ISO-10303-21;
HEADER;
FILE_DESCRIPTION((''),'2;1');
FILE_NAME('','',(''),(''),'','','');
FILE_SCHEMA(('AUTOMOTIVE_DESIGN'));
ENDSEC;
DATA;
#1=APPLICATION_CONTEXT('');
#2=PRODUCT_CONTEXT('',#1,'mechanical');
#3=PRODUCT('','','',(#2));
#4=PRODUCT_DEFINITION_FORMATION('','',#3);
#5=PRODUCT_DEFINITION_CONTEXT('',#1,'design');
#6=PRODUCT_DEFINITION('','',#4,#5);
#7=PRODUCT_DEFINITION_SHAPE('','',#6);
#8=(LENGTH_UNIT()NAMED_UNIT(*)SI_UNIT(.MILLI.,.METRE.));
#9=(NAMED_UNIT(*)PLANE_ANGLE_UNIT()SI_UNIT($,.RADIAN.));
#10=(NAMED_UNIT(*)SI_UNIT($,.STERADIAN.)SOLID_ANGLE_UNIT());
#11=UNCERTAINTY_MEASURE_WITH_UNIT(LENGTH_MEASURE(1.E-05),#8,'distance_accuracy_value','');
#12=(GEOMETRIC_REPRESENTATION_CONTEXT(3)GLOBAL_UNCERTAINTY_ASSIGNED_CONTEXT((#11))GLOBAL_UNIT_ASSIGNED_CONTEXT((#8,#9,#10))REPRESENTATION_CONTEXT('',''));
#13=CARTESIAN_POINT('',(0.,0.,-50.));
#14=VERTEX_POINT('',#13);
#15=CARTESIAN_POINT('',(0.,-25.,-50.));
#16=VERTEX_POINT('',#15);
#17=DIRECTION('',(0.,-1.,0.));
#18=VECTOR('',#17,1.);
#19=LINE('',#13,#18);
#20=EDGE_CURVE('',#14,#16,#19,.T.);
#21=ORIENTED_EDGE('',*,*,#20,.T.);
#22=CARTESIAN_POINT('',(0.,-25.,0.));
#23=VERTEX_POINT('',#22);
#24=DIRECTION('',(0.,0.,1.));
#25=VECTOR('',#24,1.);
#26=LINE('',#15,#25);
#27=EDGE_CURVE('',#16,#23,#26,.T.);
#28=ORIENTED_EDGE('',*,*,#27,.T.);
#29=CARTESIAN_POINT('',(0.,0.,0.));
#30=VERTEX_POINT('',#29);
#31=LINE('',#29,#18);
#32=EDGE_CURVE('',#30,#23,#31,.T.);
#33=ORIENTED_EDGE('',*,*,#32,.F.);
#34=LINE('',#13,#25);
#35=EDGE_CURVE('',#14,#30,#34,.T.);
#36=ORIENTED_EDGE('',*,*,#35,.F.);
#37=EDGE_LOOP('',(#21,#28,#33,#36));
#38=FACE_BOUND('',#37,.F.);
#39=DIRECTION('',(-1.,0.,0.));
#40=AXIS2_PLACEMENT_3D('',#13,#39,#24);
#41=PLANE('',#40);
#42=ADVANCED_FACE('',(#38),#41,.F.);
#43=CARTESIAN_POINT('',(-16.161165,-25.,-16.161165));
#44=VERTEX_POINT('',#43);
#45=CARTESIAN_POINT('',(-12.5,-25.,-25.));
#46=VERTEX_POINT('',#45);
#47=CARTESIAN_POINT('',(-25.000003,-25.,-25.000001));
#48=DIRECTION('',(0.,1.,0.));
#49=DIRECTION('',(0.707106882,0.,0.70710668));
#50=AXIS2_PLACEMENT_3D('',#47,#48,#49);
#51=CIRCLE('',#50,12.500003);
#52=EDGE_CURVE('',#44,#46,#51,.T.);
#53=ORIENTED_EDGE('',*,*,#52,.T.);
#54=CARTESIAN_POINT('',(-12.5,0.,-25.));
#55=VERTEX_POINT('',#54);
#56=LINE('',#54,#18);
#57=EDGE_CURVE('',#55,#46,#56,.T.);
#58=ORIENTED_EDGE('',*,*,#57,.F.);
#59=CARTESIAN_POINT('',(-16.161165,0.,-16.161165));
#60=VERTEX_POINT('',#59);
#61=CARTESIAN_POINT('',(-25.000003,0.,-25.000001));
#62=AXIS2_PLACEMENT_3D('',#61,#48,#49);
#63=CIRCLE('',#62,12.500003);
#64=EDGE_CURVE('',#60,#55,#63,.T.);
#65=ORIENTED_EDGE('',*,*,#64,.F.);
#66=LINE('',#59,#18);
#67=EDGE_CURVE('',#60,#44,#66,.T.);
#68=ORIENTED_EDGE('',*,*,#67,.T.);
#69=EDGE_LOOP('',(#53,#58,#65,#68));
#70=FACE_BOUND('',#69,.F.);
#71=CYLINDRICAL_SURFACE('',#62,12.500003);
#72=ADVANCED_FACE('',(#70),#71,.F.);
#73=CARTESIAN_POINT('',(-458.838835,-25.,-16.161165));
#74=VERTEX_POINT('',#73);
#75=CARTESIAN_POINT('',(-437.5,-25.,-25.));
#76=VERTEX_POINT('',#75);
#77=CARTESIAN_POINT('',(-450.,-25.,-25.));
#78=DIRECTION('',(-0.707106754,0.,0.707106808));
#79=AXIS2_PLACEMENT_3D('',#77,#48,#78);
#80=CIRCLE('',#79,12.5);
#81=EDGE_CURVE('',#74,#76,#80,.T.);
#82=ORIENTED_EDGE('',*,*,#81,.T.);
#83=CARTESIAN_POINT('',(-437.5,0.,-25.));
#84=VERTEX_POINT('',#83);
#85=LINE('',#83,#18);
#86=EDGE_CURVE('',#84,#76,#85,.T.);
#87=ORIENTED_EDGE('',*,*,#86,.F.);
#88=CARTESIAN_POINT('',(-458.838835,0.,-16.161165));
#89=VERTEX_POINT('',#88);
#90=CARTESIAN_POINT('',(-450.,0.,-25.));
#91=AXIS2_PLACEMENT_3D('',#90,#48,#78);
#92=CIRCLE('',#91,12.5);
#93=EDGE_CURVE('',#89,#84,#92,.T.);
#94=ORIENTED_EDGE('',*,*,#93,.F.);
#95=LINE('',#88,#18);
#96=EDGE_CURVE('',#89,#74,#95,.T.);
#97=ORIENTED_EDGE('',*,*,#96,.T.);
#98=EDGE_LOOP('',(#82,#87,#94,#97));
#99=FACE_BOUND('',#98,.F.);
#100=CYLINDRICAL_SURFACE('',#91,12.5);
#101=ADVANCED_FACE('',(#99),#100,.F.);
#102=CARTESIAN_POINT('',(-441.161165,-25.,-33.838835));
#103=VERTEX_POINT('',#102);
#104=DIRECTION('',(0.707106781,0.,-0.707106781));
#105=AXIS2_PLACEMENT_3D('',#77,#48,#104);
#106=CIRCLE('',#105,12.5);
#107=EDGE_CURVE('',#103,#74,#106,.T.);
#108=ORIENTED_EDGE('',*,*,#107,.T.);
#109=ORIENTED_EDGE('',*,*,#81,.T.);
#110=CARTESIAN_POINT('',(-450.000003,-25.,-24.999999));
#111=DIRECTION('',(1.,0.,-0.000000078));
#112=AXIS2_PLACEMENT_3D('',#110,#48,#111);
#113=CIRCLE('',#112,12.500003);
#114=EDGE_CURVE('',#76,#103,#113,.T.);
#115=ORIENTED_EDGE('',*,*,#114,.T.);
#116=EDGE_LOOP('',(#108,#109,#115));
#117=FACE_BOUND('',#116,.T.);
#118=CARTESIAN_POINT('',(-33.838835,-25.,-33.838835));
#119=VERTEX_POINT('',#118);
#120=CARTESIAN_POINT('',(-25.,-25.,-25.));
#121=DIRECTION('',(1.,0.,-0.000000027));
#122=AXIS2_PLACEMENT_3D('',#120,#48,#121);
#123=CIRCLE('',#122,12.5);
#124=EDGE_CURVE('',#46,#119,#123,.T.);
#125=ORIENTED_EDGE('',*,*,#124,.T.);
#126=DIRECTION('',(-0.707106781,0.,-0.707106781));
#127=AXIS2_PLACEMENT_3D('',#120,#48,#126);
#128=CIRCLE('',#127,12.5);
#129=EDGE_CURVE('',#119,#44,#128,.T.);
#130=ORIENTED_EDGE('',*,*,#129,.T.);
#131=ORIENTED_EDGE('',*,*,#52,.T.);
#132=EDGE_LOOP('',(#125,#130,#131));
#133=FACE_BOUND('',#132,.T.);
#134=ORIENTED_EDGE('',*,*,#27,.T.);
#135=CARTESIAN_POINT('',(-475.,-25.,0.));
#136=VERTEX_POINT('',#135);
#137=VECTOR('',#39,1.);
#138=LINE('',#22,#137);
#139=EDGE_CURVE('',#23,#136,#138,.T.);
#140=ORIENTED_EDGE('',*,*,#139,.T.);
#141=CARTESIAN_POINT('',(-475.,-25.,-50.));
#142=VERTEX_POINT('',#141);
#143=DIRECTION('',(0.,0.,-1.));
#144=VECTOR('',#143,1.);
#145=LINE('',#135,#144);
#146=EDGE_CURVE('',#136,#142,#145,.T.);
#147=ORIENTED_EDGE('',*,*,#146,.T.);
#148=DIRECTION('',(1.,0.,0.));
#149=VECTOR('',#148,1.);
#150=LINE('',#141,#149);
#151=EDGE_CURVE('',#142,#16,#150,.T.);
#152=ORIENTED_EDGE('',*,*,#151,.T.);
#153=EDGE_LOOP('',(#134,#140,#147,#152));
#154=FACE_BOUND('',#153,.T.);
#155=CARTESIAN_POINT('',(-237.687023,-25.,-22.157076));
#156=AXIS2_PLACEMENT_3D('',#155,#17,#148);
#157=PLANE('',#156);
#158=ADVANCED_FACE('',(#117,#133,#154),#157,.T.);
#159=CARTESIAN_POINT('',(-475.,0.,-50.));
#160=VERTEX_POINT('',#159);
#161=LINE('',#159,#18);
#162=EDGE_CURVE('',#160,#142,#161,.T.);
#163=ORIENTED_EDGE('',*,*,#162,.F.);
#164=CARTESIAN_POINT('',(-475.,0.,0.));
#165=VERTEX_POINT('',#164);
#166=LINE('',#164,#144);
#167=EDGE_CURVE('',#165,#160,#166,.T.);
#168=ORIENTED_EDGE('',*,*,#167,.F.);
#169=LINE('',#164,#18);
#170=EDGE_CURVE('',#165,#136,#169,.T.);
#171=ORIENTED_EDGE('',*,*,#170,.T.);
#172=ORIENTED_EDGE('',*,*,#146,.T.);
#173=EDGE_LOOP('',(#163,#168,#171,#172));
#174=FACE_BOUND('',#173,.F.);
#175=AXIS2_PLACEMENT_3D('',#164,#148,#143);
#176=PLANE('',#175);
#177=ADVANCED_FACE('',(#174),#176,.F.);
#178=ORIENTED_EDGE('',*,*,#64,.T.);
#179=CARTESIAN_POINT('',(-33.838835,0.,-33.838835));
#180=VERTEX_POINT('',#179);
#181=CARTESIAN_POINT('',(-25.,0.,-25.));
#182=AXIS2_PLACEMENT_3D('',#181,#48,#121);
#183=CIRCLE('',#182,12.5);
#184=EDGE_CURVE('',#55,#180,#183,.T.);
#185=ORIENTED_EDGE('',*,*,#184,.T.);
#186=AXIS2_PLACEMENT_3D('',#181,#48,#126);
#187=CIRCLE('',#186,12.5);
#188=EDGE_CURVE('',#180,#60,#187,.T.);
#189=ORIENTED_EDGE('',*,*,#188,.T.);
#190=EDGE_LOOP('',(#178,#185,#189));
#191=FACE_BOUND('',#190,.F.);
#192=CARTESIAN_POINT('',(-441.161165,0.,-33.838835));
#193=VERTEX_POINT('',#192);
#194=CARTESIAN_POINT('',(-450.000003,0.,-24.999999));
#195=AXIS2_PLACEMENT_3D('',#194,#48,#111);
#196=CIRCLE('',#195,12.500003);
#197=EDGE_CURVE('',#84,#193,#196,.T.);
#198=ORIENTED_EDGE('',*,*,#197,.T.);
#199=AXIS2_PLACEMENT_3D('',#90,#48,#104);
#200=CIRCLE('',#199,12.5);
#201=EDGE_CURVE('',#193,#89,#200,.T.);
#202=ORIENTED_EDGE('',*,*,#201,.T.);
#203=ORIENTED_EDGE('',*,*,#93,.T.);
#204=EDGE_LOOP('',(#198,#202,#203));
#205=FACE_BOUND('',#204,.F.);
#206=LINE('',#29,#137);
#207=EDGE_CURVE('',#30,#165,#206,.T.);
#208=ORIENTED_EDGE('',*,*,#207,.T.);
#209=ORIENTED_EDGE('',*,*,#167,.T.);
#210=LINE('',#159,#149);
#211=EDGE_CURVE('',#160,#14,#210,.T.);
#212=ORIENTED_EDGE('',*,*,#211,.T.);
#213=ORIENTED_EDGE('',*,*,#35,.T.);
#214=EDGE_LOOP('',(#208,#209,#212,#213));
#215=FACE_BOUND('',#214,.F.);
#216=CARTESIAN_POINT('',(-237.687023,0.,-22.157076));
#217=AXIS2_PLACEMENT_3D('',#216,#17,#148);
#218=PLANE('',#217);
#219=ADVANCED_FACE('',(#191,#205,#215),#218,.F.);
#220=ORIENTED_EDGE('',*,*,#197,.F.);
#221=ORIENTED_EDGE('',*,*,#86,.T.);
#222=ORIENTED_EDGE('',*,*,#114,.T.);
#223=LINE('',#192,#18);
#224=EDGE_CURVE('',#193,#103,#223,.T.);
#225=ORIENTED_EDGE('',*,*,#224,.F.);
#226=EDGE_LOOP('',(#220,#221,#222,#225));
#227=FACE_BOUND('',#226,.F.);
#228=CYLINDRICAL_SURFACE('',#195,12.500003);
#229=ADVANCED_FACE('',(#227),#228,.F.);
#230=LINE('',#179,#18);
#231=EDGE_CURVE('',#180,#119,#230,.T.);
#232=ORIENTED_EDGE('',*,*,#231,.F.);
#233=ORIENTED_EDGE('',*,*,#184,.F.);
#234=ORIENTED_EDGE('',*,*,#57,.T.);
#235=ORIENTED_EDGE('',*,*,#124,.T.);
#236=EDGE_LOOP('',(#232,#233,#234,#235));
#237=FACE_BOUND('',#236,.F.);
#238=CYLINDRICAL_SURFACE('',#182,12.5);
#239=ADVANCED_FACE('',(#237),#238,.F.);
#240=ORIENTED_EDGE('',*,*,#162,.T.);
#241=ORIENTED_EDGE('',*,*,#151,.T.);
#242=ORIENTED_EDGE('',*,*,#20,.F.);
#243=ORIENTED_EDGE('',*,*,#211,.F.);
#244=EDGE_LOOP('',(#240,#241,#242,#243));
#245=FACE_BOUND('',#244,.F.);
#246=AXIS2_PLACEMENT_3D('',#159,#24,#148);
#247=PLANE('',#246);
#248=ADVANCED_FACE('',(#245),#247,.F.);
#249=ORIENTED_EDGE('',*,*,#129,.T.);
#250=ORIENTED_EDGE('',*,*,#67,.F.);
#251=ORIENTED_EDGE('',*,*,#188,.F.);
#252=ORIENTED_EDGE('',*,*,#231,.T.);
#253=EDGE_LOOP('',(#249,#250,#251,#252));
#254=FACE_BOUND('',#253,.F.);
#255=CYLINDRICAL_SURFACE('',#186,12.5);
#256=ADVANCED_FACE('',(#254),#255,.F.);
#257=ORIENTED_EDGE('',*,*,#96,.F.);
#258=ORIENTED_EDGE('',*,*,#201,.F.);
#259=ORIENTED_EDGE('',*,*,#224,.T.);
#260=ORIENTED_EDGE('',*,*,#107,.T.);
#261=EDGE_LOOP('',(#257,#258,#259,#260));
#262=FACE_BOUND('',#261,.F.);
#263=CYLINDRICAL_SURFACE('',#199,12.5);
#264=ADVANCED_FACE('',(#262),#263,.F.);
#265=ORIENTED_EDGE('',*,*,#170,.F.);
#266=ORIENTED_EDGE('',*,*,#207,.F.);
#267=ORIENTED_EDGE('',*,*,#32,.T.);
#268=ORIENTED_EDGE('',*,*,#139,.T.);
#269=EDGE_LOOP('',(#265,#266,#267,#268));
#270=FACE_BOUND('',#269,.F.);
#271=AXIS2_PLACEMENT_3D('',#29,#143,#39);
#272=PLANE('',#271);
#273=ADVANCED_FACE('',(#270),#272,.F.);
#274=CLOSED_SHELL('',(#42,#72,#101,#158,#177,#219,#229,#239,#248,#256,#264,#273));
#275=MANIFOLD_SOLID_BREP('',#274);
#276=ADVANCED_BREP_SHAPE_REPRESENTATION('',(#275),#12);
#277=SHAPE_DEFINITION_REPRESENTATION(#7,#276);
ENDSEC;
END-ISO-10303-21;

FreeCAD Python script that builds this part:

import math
import FreeCAD as App
import Part
import Sketcher

V = App.Vector
Q = App.Units.Quantity

doc = App.newDocument("Part")
params = doc.addObject("Spreadsheet::Sheet", "Params")
for row, (alias, value) in enumerate([
    ("sketch1_radius", "12.5 mm"),
    ("sketch1_width", "475 mm"),
    ("sketch1_height", "50 mm"),
    ("pad1_length", "25 mm"),
], start=1):
    params.set(f"A{row}", alias)
    params.set(f"B{row}", "=" + value)
    params.setAlias(f"B{row}", alias)

body = doc.addObject("PartDesign::Body", "Body")

# Sketch on XZ plane
sketch1 = doc.addObject("Sketcher::SketchObject", "Sketch")
body.addObject(sketch1)
sketch1.AttachmentSupport = (doc.XZ_Plane, [""])
sketch1.MapMode = "FlatFace"
sketch1.addGeometry([
    Part.LineSegment(V(0, 0, 0), V(-475, 0, 0)),  # 0
    Part.LineSegment(V(-475, 0, 0), V(-475, -50, 0)),  # 1
    Part.LineSegment(V(-475, -50, 0), V(0, -50, 0)),  # 2
    Part.LineSegment(V(0, -50, 0), V(0, 0, 0)),  # 3
    Part.ArcOfCircle(Part.Circle(V(-450, -25, 0), V(0, 0, 1), 13), math.radians(0), math.radians(135)),  # 4
    Part.ArcOfCircle(Part.Circle(V(-450, -25, 0), V(0, 0, 1), 13), math.radians(-45), math.radians(0)),  # 5
    Part.ArcOfCircle(Part.Circle(V(-450, -25, 0), V(0, 0, 1), 13), math.radians(135), math.radians(315)),  # 6
    Part.ArcOfCircle(Part.Circle(V(-25, -25, 0), V(0, 0, 1), 13), math.radians(45), math.radians(225)),  # 7
    Part.ArcOfCircle(Part.Circle(V(-25, -25, 0), V(0, 0, 1), 13), math.radians(0), math.radians(45)),  # 8
    Part.ArcOfCircle(Part.Circle(V(-25, -25, 0), V(0, 0, 1), 13), math.radians(-135), math.radians(0)),  # 9
], False)
sketch1.addConstraint([
    Sketcher.Constraint("Coincident", 0, 2, 1, 1),
    Sketcher.Constraint("Coincident", 1, 2, 2, 1),
    Sketcher.Constraint("Coincident", 2, 2, 3, 1),
    Sketcher.Constraint("Coincident", 3, 2, 0, 1),
    Sketcher.Constraint("Tangent", 4, 1, 5, 2),
    Sketcher.Constraint("Tangent", 5, 1, 6, 2),
    Sketcher.Constraint("Tangent", 6, 1, 4, 2),
    Sketcher.Constraint("Tangent", 7, 1, 8, 2),
    Sketcher.Constraint("Tangent", 8, 1, 9, 2),
    Sketcher.Constraint("Tangent", 9, 1, 7, 2),
    Sketcher.Constraint("Horizontal", 0),
    Sketcher.Constraint("Vertical", 1),
    Sketcher.Constraint("Horizontal", 2),
    Sketcher.Constraint("Vertical", 3),
    Sketcher.Constraint("Coincident", 3, 2, -1, 1),
    Sketcher.Constraint("Equal", 6, 7),
    Sketcher.Constraint("Horizontal", 6, 3, 7, 3),
    Sketcher.Constraint("Horizontal", 9, 3, 4, 1),
    Sketcher.Constraint("Horizontal", 6, 1, 7, 1),
    Sketcher.Constraint("Horizontal", 4, 1, 8, 1),
    Sketcher.Constraint("Horizontal", 5, 1, 9, 1),
    Sketcher.Constraint("Radius", 4, Q("12.5 mm")),
    Sketcher.Constraint("DistanceX", 0, 2, 0, 1, Q("475 mm")),
    Sketcher.Constraint("DistanceY", 1, 2, 1, 1, Q("50 mm")),
    Sketcher.Constraint("DistanceX", 4, 3, -1, 1, Q("450 mm")),
    Sketcher.Constraint("DistanceY", 4, 3, -1, 1, Q("25 mm")),
    Sketcher.Constraint("DistanceX", 7, 3, -1, 1, Q("25 mm")),
    Sketcher.Constraint("DistanceX", 5, 3, 5, 1, Q("8.838838 mm")),
    Sketcher.Constraint("DistanceX", 6, 1, 5, 3, Q("8.838832 mm")),
])
sketch1.setExpression("Constraints[21]", "Params.sketch1_radius")
sketch1.setExpression("Constraints[22]", "Params.sketch1_width")
sketch1.setExpression("Constraints[23]", "Params.sketch1_height")
pad1 = doc.addObject("PartDesign::Pad", "Pad")
body.addObject(pad1)
pad1.Profile = sketch1
pad1.setExpression("Length", "Params.pad1_length")

doc.recompute()
